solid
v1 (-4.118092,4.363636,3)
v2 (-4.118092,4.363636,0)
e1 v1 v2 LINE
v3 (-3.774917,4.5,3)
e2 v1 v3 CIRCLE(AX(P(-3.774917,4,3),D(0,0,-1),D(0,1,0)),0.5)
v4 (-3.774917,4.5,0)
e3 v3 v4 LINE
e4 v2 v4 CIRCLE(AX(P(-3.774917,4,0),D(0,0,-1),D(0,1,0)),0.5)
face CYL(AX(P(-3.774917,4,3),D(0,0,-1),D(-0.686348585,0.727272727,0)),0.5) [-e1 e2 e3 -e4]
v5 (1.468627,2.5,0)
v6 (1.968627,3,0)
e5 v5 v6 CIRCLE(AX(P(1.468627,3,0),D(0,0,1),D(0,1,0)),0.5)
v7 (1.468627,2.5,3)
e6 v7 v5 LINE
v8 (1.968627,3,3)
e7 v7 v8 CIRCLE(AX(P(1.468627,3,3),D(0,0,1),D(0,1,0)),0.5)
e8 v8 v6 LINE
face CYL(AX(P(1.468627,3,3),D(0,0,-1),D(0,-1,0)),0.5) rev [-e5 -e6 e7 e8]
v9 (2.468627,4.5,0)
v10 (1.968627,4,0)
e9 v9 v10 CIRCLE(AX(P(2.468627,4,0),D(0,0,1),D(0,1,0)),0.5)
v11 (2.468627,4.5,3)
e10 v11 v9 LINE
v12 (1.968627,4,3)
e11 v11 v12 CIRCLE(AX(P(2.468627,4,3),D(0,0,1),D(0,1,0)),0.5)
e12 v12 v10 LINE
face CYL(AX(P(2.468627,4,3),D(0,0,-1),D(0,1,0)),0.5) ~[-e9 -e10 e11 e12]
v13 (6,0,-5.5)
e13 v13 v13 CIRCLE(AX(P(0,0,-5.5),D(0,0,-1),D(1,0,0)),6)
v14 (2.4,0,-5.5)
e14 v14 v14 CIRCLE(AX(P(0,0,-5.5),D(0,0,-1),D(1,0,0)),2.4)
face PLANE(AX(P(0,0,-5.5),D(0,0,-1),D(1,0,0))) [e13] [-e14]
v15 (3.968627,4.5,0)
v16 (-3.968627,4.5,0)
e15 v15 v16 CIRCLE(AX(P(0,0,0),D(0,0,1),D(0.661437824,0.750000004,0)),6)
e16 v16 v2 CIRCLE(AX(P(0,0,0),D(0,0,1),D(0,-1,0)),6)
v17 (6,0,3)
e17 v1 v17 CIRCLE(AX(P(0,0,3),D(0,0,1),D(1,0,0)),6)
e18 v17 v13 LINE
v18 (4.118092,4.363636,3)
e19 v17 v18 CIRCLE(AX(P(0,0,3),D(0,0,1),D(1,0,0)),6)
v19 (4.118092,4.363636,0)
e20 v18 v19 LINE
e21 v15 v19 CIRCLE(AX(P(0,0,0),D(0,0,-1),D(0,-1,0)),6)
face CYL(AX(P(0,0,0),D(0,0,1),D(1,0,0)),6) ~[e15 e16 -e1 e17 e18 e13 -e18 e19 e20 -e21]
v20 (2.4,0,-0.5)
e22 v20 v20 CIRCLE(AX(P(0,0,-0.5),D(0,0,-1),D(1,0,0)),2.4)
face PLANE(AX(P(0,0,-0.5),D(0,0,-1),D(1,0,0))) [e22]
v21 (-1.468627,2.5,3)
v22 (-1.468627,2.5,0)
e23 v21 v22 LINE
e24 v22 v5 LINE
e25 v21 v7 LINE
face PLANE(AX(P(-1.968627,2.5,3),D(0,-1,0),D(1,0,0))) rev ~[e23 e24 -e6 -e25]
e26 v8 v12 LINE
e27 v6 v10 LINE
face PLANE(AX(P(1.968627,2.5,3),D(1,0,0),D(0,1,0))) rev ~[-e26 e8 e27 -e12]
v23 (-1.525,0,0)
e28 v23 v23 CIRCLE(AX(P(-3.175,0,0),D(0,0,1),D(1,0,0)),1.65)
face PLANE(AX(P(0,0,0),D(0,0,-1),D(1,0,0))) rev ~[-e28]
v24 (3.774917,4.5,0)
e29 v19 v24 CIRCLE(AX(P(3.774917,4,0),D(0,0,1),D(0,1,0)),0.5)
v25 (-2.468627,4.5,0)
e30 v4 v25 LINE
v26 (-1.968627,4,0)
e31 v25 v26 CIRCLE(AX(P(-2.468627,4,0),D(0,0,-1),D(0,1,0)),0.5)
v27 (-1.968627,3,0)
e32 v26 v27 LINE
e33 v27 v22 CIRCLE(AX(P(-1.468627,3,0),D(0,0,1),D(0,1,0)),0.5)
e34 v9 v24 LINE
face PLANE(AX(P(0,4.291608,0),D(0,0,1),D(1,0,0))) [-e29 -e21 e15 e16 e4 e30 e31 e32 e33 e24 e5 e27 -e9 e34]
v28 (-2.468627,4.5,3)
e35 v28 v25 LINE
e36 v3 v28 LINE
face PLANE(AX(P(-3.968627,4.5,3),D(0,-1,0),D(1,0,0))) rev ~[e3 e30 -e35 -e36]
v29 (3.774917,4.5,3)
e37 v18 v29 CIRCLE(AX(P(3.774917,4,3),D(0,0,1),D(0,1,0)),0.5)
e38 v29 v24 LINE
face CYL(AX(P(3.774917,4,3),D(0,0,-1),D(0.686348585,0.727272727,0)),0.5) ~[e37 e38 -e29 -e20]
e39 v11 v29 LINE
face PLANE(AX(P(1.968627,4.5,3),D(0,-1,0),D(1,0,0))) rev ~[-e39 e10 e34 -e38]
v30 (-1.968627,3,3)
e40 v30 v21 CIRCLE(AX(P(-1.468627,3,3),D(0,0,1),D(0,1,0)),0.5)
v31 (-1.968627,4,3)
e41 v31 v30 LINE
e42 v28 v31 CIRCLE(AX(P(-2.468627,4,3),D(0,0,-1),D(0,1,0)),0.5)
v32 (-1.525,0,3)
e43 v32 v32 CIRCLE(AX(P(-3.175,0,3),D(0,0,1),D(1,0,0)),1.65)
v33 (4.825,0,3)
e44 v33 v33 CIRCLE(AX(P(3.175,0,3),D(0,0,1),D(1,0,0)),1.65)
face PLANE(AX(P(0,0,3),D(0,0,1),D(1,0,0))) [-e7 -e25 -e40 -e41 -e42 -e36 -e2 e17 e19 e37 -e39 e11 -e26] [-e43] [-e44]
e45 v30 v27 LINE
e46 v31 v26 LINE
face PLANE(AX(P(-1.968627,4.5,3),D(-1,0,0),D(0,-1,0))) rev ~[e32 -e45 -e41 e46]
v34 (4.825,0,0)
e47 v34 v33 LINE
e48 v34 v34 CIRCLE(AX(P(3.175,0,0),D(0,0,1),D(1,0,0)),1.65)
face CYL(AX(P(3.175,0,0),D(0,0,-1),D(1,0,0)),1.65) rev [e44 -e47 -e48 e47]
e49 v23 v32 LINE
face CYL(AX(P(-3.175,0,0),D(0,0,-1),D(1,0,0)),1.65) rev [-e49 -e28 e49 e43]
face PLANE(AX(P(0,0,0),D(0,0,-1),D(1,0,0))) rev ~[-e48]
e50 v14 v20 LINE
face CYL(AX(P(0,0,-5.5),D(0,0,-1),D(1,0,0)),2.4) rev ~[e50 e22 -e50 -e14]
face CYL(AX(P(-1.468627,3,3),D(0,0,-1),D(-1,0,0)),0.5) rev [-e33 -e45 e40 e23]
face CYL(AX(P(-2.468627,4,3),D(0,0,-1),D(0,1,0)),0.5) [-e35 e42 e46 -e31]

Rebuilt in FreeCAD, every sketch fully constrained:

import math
import FreeCAD as App
import Part
import Sketcher

V = App.Vector
Q = App.Units.Quantity


def edges_at(feature, points):
    """Names of the edges that pass closest to the given points."""
    edges = feature.Shape.Edges
    near = lambda p: min(range(len(edges)), key=lambda i: edges[i].distToShape(Part.Vertex(*p))[0])
    return sorted({f"Edge{near(p) + 1}" for p in points})

doc = App.newDocument("Part")
params = doc.addObject("Spreadsheet::Sheet", "Params")
for row, (alias, value) in enumerate([
    ("sketch1_diameter", "12 mm"),
    ("sketch1_diameter2", "3.3 mm"),
    ("pad1_length", "3 mm"),
    ("sketch2_diameter", "12 mm"),
    ("pad2_length", "5.5 mm"),
    ("sketch3_radius", "6 mm"),
    ("sketch3_width", "2 mm"),
    ("pocket1_length", "3 mm"),
    ("fillet_radius", "0.5 mm"),
    ("sketch4_diameter", "4.8 mm"),
    ("pocket2_length", "5 mm"),
], start=1):
    params.set(f"A{row}", alias)
    params.set(f"B{row}", "=" + value)
    params.setAlias(f"B{row}", alias)

body = doc.addObject("PartDesign::Body", "Body")

# Sketch on XY plane
sketch1 = body.newObject("Sketcher::SketchObject", "Sketch")
sketch1.AttachmentSupport = (doc.getObject("XY_Plane"), [""])
sketch1.MapMode = "FlatFace"
sketch1.addGeometry(Part.Circle(V(0, 0, 0), V(0, 0, 1), 6), False)
sketch1.addGeometry(Part.Circle(V(-3.2, 0, 0), V(0, 0, 1), 1.6), False)
sketch1.addGeometry(Part.Circle(V(3.2, 0, 0), V(0, 0, 1), 1.6), False)
sketch1.addConstraint(Sketcher.Constraint("Coincident", 0, 3, -1, 1))
sketch1.addConstraint(Sketcher.Constraint("Equal", 1, 2))
sketch1.addConstraint(Sketcher.Constraint("Symmetric", 1, 3, 2, 3, -1, 1))
sketch1.addConstraint(Sketcher.Constraint("PointOnObject", 1, 3, -1))
sketch1.addConstraint(Sketcher.Constraint("Diameter", 0, Q("12 mm")))
sketch1.addConstraint(Sketcher.Constraint("Diameter", 1, Q("3.3 mm")))
sketch1.addConstraint(Sketcher.Constraint("DistanceX", 1, 3, 2, 3, Q("6.35 mm")))
sketch1.setExpression("Constraints[4]", "Params.sketch1_diameter")
sketch1.setExpression("Constraints[5]", "Params.sketch1_diameter2")
pad1 = body.newObject("PartDesign::Pad", "Pad")
pad1.Profile = sketch1
pad1.setExpression("Length", "Params.pad1_length")

# Sketch on XY plane
sketch2 = body.newObject("Sketcher::SketchObject", "Sketch001")
sketch2.AttachmentSupport = (doc.getObject("XY_Plane"), [""])
sketch2.MapMode = "FlatFace"
sketch2.addGeometry(Part.Circle(V(0, 0, 0), V(0, 0, 1), 6), False)
sketch2.addConstraint(Sketcher.Constraint("Coincident", 0, 3, -1, 1))
sketch2.addConstraint(Sketcher.Constraint("Diameter", 0, Q("12 mm")))
sketch2.setExpression("Constraints[1]", "Params.sketch2_diameter")
pad2 = body.newObject("PartDesign::Pad", "Pad001")
pad2.Profile = sketch2
pad2.setExpression("Length", "Params.pad2_length")
pad2.Reversed = True

# Sketch on XY plane
sketch3 = body.newObject("Sketcher::SketchObject", "Sketch002")
sketch3.AttachmentSupport = (doc.getObject("XY_Plane"), [""])
sketch3.MapMode = "FlatFace"
sketch3.AttachmentOffset = App.Placement(V(0, 0, 3), App.Rotation())
sketch3.addGeometry(Part.ArcOfCircle(Part.Circle(V(0, 0, 0), V(0, 0, 1), 6), math.radians(49), math.radians(131)), False)
sketch3.addGeometry(Part.LineSegment(V(-4, 4.5, 0), V(-2, 4.5, 0)), False)
sketch3.addGeometry(Part.LineSegment(V(-2, 4.5, 0), V(-2, 2.5, 0)), False)
sketch3.addGeometry(Part.LineSegment(V(-2, 2.5, 0), V(2, 2.5, 0)), False)
sketch3.addGeometry(Part.LineSegment(V(2, 2.5, 0), V(2, 4.5, 0)), False)
sketch3.addGeometry(Part.LineSegment(V(2, 4.5, 0), V(4, 4.5, 0)), False)
sketch3.addConstraint(Sketcher.Constraint("Coincident", 0, 2, 1, 1))
sketch3.addConstraint(Sketcher.Constraint("Coincident", 1, 2, 2, 1))
sketch3.addConstraint(Sketcher.Constraint("Coincident", 2, 2, 3, 1))
sketch3.addConstraint(Sketcher.Constraint("Coincident", 3, 2, 4, 1))
sketch3.addConstraint(Sketcher.Constraint("Coincident", 4, 2, 5, 1))
sketch3.addConstraint(Sketcher.Constraint("Coincident", 5, 2, 0, 1))
sketch3.addConstraint(Sketcher.Constraint("Horizontal", 1))
sketch3.addConstraint(Sketcher.Constraint("Vertical", 2))
sketch3.addConstraint(Sketcher.Constraint("Horizontal", 3))
sketch3.addConstraint(Sketcher.Constraint("Vertical", 4))
sketch3.addConstraint(Sketcher.Constraint("Horizontal", 5))
sketch3.addConstraint(Sketcher.Constraint("Coincident", 0, 3, -1, 1))
sketch3.addConstraint(Sketcher.Constraint("Symmetric", 1, 2, 4, 2, -2))
sketch3.addConstraint(Sketcher.Constraint("Equal", 5, 2))
sketch3.addConstraint(Sketcher.Constraint("Radius", 0, Q("6 mm")))
sketch3.addConstraint(Sketcher.Constraint("DistanceX", 1, 1, 1, 2, Q("2 mm")))
sketch3.addConstraint(Sketcher.Constraint("DistanceY", -1, 1, 0, 2, Q("4.5 mm")))
sketch3.setExpression("Constraints[14]", "Params.sketch3_radius")
sketch3.setExpression("Constraints[15]", "Params.sketch3_width")
pocket1 = body.newObject("PartDesign::Pocket", "Pocket")
pocket1.Profile = sketch3
pocket1.setExpression("Length", "Params.pocket1_length")
doc.recompute()

fillet = body.newObject("PartDesign::Fillet", "Fillet")
fillet.Base = (pocket1, edges_at(pocket1, [
    (-3.969, 4.5, 1.5),
    (-1.969, 4.5, 1.5),
    (1.969, 2.5, 1.5),
    (1.969, 4.5, 1.5),
    (3.969, 4.5, 1.5),
    (-1.969, 2.5, 1.5),
]))
fillet.setExpression("Radius", "Params.fillet_radius")

# Sketch on XY plane
sketch4 = body.newObject("Sketcher::SketchObject", "Sketch003")
sketch4.AttachmentSupport = (doc.getObject("XY_Plane"), [""])
sketch4.MapMode = "FlatFace"
sketch4.AttachmentOffset = App.Placement(V(0, 0, -5.5), App.Rotation())
sketch4.addGeometry(Part.Circle(V(0, 0, 0), V(0, 0, 1), 2.4), False)
sketch4.addConstraint(Sketcher.Constraint("Coincident", 0, 3, -1, 1))
sketch4.addConstraint(Sketcher.Constraint("Diameter", 0, Q("4.8 mm")))
sketch4.setExpression("Constraints[1]", "Params.sketch4_diameter")
pocket2 = body.newObject("PartDesign::Pocket", "Pocket001")
pocket2.Profile = sketch4
pocket2.setExpression("Length", "Params.pocket2_length")
pocket2.Reversed = True

doc.recompute()
